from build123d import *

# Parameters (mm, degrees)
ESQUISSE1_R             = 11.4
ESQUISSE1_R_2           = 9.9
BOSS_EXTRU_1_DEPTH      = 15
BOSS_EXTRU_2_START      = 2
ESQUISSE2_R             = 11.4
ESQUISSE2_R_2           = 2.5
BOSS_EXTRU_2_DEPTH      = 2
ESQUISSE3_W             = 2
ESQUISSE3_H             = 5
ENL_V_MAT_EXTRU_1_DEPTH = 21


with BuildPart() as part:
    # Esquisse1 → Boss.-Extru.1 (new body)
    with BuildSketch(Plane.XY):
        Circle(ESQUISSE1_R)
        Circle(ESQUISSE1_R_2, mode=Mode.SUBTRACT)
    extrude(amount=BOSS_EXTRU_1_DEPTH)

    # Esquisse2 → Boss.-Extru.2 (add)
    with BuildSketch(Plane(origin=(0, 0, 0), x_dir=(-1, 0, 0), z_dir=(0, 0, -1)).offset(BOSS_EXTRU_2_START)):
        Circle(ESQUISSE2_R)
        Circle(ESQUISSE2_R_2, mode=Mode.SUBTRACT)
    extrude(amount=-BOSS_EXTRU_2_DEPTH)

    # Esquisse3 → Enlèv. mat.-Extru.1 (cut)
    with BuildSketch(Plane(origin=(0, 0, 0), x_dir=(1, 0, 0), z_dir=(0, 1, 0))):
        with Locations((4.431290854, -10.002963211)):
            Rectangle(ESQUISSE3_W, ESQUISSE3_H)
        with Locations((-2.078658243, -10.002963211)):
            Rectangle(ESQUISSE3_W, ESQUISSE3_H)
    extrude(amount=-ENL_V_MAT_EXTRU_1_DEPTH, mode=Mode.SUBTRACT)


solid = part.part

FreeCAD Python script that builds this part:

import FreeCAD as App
import Part
import Sketcher
from FreeCAD import Vector
Q = App.Units.Quantity


def add_polygon(sketch, points):
    """Adds a closed chain of lines whose ends are joined by coincident constraints."""
    first, n = sketch.GeometryCount, len(points)
    for a, b in zip(points, points[1:] + points[:1]):
        sketch.addGeometry(Part.LineSegment(App.Vector(*a, 0), App.Vector(*b, 0)), False)
    for i in range(n):
        sketch.addConstraint(Sketcher.Constraint("Coincident", first + i, 2, first + (i + 1) % n, 1))

doc = App.newDocument("Part")
body = doc.addObject("PartDesign::Body", "Body")

# Sketch on XY plane
sketch1 = body.newObject("Sketcher::SketchObject", "Sketch")
sketch1.AttachmentSupport = (doc.getObject("XY_Plane"), [""])
sketch1.MapMode = "FlatFace"
sketch1.addGeometry([
    Part.Circle(Vector(0, 0, 0), Vector(0, 0, 1), 11.4),
    Part.Circle(Vector(0, 0, 0), Vector(0, 0, 1), 9.9),
], False)
sketch1.addConstraint([
    Sketcher.Constraint("Coincident", 0, 3, -1, 1),
    Sketcher.Constraint("Coincident", 1, 3, -1, 1),
    Sketcher.Constraint("Diameter", 0, Q("22.8 mm")),
    Sketcher.Constraint("Diameter", 1, Q("19.8 mm")),
])
pad1 = body.newObject("PartDesign::Pad", "Pad")
pad1.Profile = sketch1
pad1.Length = 15

# Sketch on XY plane
sketch2 = body.newObject("Sketcher::SketchObject", "Sketch001")
sketch2.AttachmentSupport = (doc.getObject("XY_Plane"), [""])
sketch2.MapMode = "FlatFace"
sketch2.AttachmentOffset = App.Placement(Vector(0, 0, -2), App.Rotation())
sketch2.addGeometry([
    Part.Circle(Vector(0, 0, 0), Vector(0, 0, 1), 11.4),
    Part.Circle(Vector(0, 0, 0), Vector(0, 0, 1), 2.5),
], False)
sketch2.addConstraint([
    Sketcher.Constraint("Coincident", 0, 3, -1, 1),
    Sketcher.Constraint("Coincident", 1, 3, -1, 1),
    Sketcher.Constraint("Diameter", 1, Q("5 mm")),
    Sketcher.Constraint("Diameter", 0, Q("22.8 mm")),
])
pad2 = body.newObject("PartDesign::Pad", "Pad001")
pad2.Profile = sketch2
pad2.Length = 2

# Sketch on XZ plane
sketch3 = body.newObject("Sketcher::SketchObject", "Sketch002")
sketch3.AttachmentSupport = (doc.getObject("XZ_Plane"), [""])
sketch3.MapMode = "FlatFace"
add_polygon(sketch3, [(3.431291, 7.502963), (3.431291, 12.502963), (5.431291, 12.502963), (5.431291, 7.502963)])  # lines 0-3
add_polygon(sketch3, [(-3.078658, 7.502963), (-3.078658, 12.502963), (-1.078658, 12.502963), (-1.078658, 7.502963)])  # lines 4-7
sketch3.addConstraint([
    Sketcher.Constraint("Vertical", 0),
    Sketcher.Constraint("Horizontal", 1),
    Sketcher.Constraint("Vertical", 2),
    Sketcher.Constraint("Horizontal", 3),
    Sketcher.Constraint("Vertical", 4),
    Sketcher.Constraint("Horizontal", 5),
    Sketcher.Constraint("Vertical", 6),
    Sketcher.Constraint("Horizontal", 7),
    Sketcher.Constraint("Horizontal", 1, 2, 4, 2),
    Sketcher.Constraint("Horizontal", 3, 2, 6, 2),
    Sketcher.Constraint("Equal", 3, 5),
    Sketcher.Constraint("DistanceX", 1, 1, 1, 2, Q("2 mm")),
    Sketcher.Constraint("DistanceY", 0, 1, 0, 2, Q("5 mm")),
    Sketcher.Constraint("DistanceX", -1, 1, 0, 2, Q("3.431291 mm")),
    Sketcher.Constraint("DistanceX", 4, 2, -1, 1, Q("3.078658 mm")),
    Sketcher.Constraint("DistanceY", -1, 1, 0, 2, Q("12.502963 mm")),
])
pocket1 = body.newObject("PartDesign::Pocket", "Pocket")
pocket1.Profile = sketch3
pocket1.Length = 21
pocket1.Reversed = True

doc.recompute()
